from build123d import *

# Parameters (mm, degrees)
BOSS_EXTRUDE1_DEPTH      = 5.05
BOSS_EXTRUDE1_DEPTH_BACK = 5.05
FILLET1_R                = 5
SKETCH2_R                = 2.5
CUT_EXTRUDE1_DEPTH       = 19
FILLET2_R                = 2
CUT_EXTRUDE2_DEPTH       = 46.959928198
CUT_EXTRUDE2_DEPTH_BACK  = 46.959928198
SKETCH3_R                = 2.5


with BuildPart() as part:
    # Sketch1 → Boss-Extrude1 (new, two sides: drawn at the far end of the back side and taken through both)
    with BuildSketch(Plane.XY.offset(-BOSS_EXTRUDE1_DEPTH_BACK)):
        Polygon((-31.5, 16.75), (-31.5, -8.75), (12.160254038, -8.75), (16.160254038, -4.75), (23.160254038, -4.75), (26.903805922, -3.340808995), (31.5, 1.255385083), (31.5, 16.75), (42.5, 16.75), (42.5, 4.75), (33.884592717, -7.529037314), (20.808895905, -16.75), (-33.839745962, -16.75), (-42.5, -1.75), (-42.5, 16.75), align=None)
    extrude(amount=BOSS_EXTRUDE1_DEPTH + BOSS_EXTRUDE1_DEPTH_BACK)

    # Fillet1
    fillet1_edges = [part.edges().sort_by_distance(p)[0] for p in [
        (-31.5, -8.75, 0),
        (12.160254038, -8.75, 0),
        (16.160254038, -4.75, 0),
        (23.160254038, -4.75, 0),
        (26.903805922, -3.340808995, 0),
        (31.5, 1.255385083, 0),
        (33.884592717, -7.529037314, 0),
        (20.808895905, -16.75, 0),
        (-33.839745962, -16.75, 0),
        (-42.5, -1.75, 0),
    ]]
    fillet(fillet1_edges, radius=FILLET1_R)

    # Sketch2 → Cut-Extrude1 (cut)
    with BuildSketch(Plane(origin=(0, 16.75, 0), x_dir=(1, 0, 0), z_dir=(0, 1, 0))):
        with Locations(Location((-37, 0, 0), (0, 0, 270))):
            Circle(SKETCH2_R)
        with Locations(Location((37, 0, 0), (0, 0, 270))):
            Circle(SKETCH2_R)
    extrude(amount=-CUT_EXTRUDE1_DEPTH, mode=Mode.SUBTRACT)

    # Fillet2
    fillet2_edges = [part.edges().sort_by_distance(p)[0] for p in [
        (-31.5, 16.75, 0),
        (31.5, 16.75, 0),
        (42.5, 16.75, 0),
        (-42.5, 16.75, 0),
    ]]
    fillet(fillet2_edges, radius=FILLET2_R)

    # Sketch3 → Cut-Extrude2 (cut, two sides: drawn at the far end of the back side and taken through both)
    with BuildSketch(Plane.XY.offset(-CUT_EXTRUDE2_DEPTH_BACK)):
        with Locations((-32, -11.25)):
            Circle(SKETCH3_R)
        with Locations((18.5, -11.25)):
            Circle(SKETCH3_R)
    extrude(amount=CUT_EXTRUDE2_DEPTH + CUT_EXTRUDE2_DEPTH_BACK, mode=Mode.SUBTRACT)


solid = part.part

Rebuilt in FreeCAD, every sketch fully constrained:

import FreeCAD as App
import Part
import Sketcher

V = App.Vector
Q = App.Units.Quantity


def edges_at(feature, points):
    """Names of the edges that pass closest to the given points."""
    edges = feature.Shape.Edges
    near = lambda p: min(range(len(edges)), key=lambda i: edges[i].distToShape(Part.Vertex(*p))[0])
    return sorted({f"Edge{near(p) + 1}" for p in points})


def add_polygon(sketch, points):
    """Adds a closed chain of lines whose ends are joined by coincident constraints."""
    first, n = sketch.GeometryCount, len(points)
    for a, b in zip(points, points[1:] + points[:1]):
        sketch.addGeometry(Part.LineSegment(App.Vector(*a, 0), App.Vector(*b, 0)), False)
    for i in range(n):
        sketch.addConstraint(Sketcher.Constraint("Coincident", first + i, 2, first + (i + 1) % n, 1))

doc = App.newDocument("Part")
params = doc.addObject("Spreadsheet::Sheet", "Params")
for row, (alias, value) in enumerate([
    ("sketch1_width", "11 mm"),
    ("sketch1_width2", "7 mm"),
    ("sketch1_height", "12 mm"),
    ("sketch1_length", "16 mm"),
    ("sketch1_length2", "15 mm"),
    ("pad1_length", "5.05 mm"),
    ("pad1_length2", "5.05 mm"),
    ("fillet_radius", "5 mm"),
    ("sketch2_diameter", "5 mm"),
    ("pocket1_length", "19 mm"),
    ("fillet2_radius", "2 mm"),
    ("sketch3_diameter", "5 mm"),
], start=1):
    params.set(f"A{row}", alias)
    params.set(f"B{row}", "=" + value)
    params.setAlias(f"B{row}", alias)

body = doc.addObject("PartDesign::Body", "Body")

# Sketch on XY plane
sketch1 = doc.addObject("Sketcher::SketchObject", "Sketch")
body.addObject(sketch1)
sketch1.AttachmentSupport = (doc.XY_Plane, [""])
sketch1.MapMode = "FlatFace"
add_polygon(sketch1, [(-31.5, -8.8), (-31.5, 16.8), (-42.5, 16.8), (-42.5, -1.8), (-33.8, -16.8), (20.8, -16.8), (33.9, -7.5), (42.5, 4.8), (42.5, 16.8), (31.5, 16.8), (31.5, 1.3), (26.9, -3.3), (23.2, -4.8), (16.2, -4.8), (12.2, -8.8)])  # lines 0-14
sketch1.addConstraint([
    Sketcher.Constraint("Vertical", 0),
    Sketcher.Constraint("Horizontal", 1),
    Sketcher.Constraint("Vertical", 2),
    Sketcher.Constraint("Horizontal", 4),
    Sketcher.Constraint("Vertical", 7),
    Sketcher.Constraint("Horizontal", 8),
    Sketcher.Constraint("Vertical", 9),
    Sketcher.Constraint("Horizontal", 12),
    Sketcher.Constraint("Horizontal", 14),
    Sketcher.Constraint("Symmetric", 1, 2, 7, 2, -2),
    Sketcher.Constraint("Parallel", 10, 13),
    Sketcher.Constraint("Equal", 1, 8),
    Sketcher.Constraint("DistanceX", 1, 2, 1, 1, 11.0),
    Sketcher.Constraint("DistanceX", 12, 2, 12, 1, 7.0),
    Sketcher.Constraint("DistanceY", 7, 1, 7, 2, 12.0),
    Sketcher.Constraint("Angle", 3, Q("-60 deg")),
    Sketcher.Constraint("Angle", 10, Q("-135 deg")),
    Sketcher.Constraint("Distance", 5, 16.0),
    Sketcher.Constraint("Distance", 6, 15.0),
    Sketcher.Constraint("Distance", 11, 4.0),
    Sketcher.Constraint("DistanceY", 0, 1, 0, 2, 25.5),
    Sketcher.Constraint("DistanceY", 2, 2, 2, 1, 18.5),
    Sketcher.Constraint("DistanceY", 3, 2, 2, 2, 15.0),
    Sketcher.Constraint("DistanceX", 0, 2, 6, 2, 74.0),
    Sketcher.Constraint("DistanceY", 4, 2, 11, 2, 12.0),
    Sketcher.Constraint("Distance", 10, 6.5),
    Sketcher.Constraint("DistanceY", -1, 1, 0, 2, 16.75),
    Sketcher.Constraint("DistanceX", 4, 1, 4, 2, 54.648642),
    Sketcher.Constraint("DistanceX", 14, 2, 14, 1, 43.660254),
])
sketch1.setExpression("Constraints[27]", "Params.sketch1_width")
sketch1.setExpression("Constraints[28]", "Params.sketch1_width2")
sketch1.setExpression("Constraints[29]", "Params.sketch1_height")
sketch1.setExpression("Constraints[32]", "Params.sketch1_length")
sketch1.setExpression("Constraints[33]", "Params.sketch1_length2")
pad1 = doc.addObject("PartDesign::Pad", "Pad")
body.addObject(pad1)
pad1.Profile = sketch1
pad1.Type = "TwoLengths"
pad1.setExpression("Length", "Params.pad1_length")
pad1.setExpression("Length2", "Params.pad1_length2")
doc.recompute()

fillet = doc.addObject("PartDesign::Fillet", "Fillet")
body.addObject(fillet)
fillet.Base = (pad1, edges_at(pad1, [
    (-31.5, -8.75, 0),
    (12.16, -8.75, 0),
    (16.16, -4.75, 0),
    (23.16, -4.75, 0),
    (26.904, -3.341, 0),
    (31.5, 1.255, 0),
    (33.885, -7.529, 0),
    (20.809, -16.75, 0),
    (-33.84, -16.75, 0),
    (-42.5, -1.75, 0),
]))
fillet.setExpression("Radius", "Params.fillet_radius")

# Sketch on XZ plane
sketch2 = doc.addObject("Sketcher::SketchObject", "Sketch001")
body.addObject(sketch2)
sketch2.AttachmentSupport = (doc.XZ_Plane, [""])
sketch2.MapMode = "FlatFace"
sketch2.AttachmentOffset = App.Placement(V(0, 0, -16.75), App.Rotation())
sketch2.addGeometry([
    Part.Circle(V(-37, 0, 0), V(0, 0, 1), 2.5),
    Part.Circle(V(37, 0, 0), V(0, 0, 1), 2.5),
], False)
sketch2.addConstraint([
    Sketcher.Constraint("Equal", 0, 1),
    Sketcher.Constraint("Symmetric", 0, 3, 1, 3, -1, 1),
    Sketcher.Constraint("PointOnObject", 0, 3, -1),
    Sketcher.Constraint("Diameter", 0, 5.0),
    Sketcher.Constraint("DistanceX", 0, 3, -1, 1, 37.0),
])
sketch2.setExpression("Constraints[3]", "Params.sketch2_diameter")
pocket1 = doc.addObject("PartDesign::Pocket", "Pocket")
body.addObject(pocket1)
pocket1.Profile = sketch2
pocket1.setExpression("Length", "Params.pocket1_length")
pocket1.Reversed = True
doc.recompute()

fillet2 = doc.addObject("PartDesign::Fillet", "Fillet001")
body.addObject(fillet2)
fillet2.Base = (pocket1, edges_at(pocket1, [
    (-31.5, 16.75, 0),
    (31.5, 16.75, 0),
    (42.5, 16.75, 0),
    (-42.5, 16.75, 0),
]))
fillet2.setExpression("Radius", "Params.fillet2_radius")

# Sketch on XY plane
sketch3 = doc.addObject("Sketcher::SketchObject", "Sketch002")
body.addObject(sketch3)
sketch3.AttachmentSupport = (doc.XY_Plane, [""])
sketch3.MapMode = "FlatFace"
sketch3.addGeometry([
    Part.Circle(V(-32, -11.2, 0), V(0, 0, 1), 2.5),
    Part.Circle(V(18.5, -11.2, 0), V(0, 0, 1), 2.5),
], False)
sketch3.addConstraint([
    Sketcher.Constraint("Equal", 0, 1),
    Sketcher.Constraint("Horizontal", 0, 3, 1, 3),
    Sketcher.Constraint("Diameter", 0, 5.0),
    Sketcher.Constraint("DistanceX", 0, 3, -1, 1, 32.0),
    Sketcher.Constraint("DistanceX", -1, 1, 1, 3, 18.5),
    Sketcher.Constraint("DistanceY", 0, 3, -1, 1, 11.25),
])
sketch3.setExpression("Constraints[2]", "Params.sketch3_diameter")
pocket2 = doc.addObject("PartDesign::Pocket", "Pocket001")
body.addObject(pocket2)
pocket2.Profile = sketch3
pocket2.Type = "ThroughAll"
pocket2.Midplane = True

doc.recompute()
